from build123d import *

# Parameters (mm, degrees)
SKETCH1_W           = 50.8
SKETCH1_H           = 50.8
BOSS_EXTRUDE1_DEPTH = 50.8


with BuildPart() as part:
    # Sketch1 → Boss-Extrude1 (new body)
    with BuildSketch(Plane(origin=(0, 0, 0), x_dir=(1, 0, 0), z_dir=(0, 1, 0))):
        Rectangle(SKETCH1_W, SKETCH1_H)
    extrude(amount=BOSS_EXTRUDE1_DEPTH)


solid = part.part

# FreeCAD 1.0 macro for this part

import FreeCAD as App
import Part
import Sketcher
Q = App.Units.Quantity


def add_polygon(sketch, points):
    """Adds a closed chain of lines whose ends are joined by coincident constraints."""
    first, n = sketch.GeometryCount, len(points)
    for a, b in zip(points, points[1:] + points[:1]):
        sketch.addGeometry(Part.LineSegment(App.Vector(*a, 0), App.Vector(*b, 0)), False)
    for i in range(n):
        sketch.addConstraint(Sketcher.Constraint("Coincident", first + i, 2, first + (i + 1) % n, 1))

doc = App.newDocument("Part")
body = doc.addObject("PartDesign::Body", "Body")

sketch1 = body.newObject("Sketcher::SketchObject", "Sketch")
sketch1.AttachmentSupport = (doc.getObject("XZ_Plane"), [""])
sketch1.MapMode = "FlatFace"
add_polygon(sketch1, [(-25, -25), (-25, 25), (25, 25), (25, -25)])
sketch1.addConstraint([
    Sketcher.Constraint("Vertical", 0),
    Sketcher.Constraint("Horizontal", 1),
    Sketcher.Constraint("Vertical", 2),
    Sketcher.Constraint("Horizontal", 3),
    Sketcher.Constraint("Symmetric", 0, 2, 2, 2, -1, 1),
    Sketcher.Constraint("Equal", 3, 0),
    Sketcher.Constraint("DistanceX", 1, 1, 1, 2, Q("2 in")),
])
pad1 = body.newObject("PartDesign::Pad", "Pad")
pad1.Profile = sketch1
pad1.Length = Q("2 in")
pad1.Reversed = True

doc.recompute()
